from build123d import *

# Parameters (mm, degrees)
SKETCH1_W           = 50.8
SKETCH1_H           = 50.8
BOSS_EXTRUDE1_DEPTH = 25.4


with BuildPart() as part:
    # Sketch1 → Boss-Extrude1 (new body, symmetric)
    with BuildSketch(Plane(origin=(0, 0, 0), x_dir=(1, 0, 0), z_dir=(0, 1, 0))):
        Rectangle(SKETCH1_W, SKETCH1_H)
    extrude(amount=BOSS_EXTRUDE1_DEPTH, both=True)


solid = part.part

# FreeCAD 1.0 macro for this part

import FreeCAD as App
import Part
import Sketcher
from FreeCAD import Vector
Q = App.Units.Quantity

doc = App.newDocument("Part")
body = doc.addObject("PartDesign::Body", "Body")

# Sketch on XZ plane
sketch1 = body.newObject("Sketcher::SketchObject", "Sketch")
sketch1.AttachmentSupport = (doc.getObject("XZ_Plane"), [""])
sketch1.MapMode = "FlatFace"
sketch1.addGeometry([
    Part.LineSegment(Vector(-25.4, -25.4, 0), Vector(-25.4, 25.4, 0)),
    Part.LineSegment(Vector(-25.4, 25.4, 0), Vector(25.4, 25.4, 0)),
    Part.LineSegment(Vector(25.4, 25.4, 0), Vector(25.4, -25.4, 0)),
    Part.LineSegment(Vector(25.4, -25.4, 0), Vector(-25.4, -25.4, 0)),
], False)
sketch1.addConstraint([
    Sketcher.Constraint("Coincident", 0, 2, 1, 1),
    Sketcher.Constraint("Coincident", 1, 2, 2, 1),
    Sketcher.Constraint("Coincident", 2, 2, 3, 1),
    Sketcher.Constraint("Coincident", 3, 2, 0, 1),
    Sketcher.Constraint("Vertical", 0),
    Sketcher.Constraint("Horizontal", 1),
    Sketcher.Constraint("Vertical", 2),
    Sketcher.Constraint("Horizontal", 3),
    Sketcher.Constraint("Symmetric", 0, 2, 2, 2, -1, 1),
    Sketcher.Constraint("Equal", 3, 0),
    Sketcher.Constraint("DistanceX", 1, 1, 1, 2, Q("2 in")),
])
pad1 = body.newObject("PartDesign::Pad", "Pad")
pad1.Profile = sketch1
pad1.Length = Q("2 in")
pad1.Midplane = True

doc.recompute()
